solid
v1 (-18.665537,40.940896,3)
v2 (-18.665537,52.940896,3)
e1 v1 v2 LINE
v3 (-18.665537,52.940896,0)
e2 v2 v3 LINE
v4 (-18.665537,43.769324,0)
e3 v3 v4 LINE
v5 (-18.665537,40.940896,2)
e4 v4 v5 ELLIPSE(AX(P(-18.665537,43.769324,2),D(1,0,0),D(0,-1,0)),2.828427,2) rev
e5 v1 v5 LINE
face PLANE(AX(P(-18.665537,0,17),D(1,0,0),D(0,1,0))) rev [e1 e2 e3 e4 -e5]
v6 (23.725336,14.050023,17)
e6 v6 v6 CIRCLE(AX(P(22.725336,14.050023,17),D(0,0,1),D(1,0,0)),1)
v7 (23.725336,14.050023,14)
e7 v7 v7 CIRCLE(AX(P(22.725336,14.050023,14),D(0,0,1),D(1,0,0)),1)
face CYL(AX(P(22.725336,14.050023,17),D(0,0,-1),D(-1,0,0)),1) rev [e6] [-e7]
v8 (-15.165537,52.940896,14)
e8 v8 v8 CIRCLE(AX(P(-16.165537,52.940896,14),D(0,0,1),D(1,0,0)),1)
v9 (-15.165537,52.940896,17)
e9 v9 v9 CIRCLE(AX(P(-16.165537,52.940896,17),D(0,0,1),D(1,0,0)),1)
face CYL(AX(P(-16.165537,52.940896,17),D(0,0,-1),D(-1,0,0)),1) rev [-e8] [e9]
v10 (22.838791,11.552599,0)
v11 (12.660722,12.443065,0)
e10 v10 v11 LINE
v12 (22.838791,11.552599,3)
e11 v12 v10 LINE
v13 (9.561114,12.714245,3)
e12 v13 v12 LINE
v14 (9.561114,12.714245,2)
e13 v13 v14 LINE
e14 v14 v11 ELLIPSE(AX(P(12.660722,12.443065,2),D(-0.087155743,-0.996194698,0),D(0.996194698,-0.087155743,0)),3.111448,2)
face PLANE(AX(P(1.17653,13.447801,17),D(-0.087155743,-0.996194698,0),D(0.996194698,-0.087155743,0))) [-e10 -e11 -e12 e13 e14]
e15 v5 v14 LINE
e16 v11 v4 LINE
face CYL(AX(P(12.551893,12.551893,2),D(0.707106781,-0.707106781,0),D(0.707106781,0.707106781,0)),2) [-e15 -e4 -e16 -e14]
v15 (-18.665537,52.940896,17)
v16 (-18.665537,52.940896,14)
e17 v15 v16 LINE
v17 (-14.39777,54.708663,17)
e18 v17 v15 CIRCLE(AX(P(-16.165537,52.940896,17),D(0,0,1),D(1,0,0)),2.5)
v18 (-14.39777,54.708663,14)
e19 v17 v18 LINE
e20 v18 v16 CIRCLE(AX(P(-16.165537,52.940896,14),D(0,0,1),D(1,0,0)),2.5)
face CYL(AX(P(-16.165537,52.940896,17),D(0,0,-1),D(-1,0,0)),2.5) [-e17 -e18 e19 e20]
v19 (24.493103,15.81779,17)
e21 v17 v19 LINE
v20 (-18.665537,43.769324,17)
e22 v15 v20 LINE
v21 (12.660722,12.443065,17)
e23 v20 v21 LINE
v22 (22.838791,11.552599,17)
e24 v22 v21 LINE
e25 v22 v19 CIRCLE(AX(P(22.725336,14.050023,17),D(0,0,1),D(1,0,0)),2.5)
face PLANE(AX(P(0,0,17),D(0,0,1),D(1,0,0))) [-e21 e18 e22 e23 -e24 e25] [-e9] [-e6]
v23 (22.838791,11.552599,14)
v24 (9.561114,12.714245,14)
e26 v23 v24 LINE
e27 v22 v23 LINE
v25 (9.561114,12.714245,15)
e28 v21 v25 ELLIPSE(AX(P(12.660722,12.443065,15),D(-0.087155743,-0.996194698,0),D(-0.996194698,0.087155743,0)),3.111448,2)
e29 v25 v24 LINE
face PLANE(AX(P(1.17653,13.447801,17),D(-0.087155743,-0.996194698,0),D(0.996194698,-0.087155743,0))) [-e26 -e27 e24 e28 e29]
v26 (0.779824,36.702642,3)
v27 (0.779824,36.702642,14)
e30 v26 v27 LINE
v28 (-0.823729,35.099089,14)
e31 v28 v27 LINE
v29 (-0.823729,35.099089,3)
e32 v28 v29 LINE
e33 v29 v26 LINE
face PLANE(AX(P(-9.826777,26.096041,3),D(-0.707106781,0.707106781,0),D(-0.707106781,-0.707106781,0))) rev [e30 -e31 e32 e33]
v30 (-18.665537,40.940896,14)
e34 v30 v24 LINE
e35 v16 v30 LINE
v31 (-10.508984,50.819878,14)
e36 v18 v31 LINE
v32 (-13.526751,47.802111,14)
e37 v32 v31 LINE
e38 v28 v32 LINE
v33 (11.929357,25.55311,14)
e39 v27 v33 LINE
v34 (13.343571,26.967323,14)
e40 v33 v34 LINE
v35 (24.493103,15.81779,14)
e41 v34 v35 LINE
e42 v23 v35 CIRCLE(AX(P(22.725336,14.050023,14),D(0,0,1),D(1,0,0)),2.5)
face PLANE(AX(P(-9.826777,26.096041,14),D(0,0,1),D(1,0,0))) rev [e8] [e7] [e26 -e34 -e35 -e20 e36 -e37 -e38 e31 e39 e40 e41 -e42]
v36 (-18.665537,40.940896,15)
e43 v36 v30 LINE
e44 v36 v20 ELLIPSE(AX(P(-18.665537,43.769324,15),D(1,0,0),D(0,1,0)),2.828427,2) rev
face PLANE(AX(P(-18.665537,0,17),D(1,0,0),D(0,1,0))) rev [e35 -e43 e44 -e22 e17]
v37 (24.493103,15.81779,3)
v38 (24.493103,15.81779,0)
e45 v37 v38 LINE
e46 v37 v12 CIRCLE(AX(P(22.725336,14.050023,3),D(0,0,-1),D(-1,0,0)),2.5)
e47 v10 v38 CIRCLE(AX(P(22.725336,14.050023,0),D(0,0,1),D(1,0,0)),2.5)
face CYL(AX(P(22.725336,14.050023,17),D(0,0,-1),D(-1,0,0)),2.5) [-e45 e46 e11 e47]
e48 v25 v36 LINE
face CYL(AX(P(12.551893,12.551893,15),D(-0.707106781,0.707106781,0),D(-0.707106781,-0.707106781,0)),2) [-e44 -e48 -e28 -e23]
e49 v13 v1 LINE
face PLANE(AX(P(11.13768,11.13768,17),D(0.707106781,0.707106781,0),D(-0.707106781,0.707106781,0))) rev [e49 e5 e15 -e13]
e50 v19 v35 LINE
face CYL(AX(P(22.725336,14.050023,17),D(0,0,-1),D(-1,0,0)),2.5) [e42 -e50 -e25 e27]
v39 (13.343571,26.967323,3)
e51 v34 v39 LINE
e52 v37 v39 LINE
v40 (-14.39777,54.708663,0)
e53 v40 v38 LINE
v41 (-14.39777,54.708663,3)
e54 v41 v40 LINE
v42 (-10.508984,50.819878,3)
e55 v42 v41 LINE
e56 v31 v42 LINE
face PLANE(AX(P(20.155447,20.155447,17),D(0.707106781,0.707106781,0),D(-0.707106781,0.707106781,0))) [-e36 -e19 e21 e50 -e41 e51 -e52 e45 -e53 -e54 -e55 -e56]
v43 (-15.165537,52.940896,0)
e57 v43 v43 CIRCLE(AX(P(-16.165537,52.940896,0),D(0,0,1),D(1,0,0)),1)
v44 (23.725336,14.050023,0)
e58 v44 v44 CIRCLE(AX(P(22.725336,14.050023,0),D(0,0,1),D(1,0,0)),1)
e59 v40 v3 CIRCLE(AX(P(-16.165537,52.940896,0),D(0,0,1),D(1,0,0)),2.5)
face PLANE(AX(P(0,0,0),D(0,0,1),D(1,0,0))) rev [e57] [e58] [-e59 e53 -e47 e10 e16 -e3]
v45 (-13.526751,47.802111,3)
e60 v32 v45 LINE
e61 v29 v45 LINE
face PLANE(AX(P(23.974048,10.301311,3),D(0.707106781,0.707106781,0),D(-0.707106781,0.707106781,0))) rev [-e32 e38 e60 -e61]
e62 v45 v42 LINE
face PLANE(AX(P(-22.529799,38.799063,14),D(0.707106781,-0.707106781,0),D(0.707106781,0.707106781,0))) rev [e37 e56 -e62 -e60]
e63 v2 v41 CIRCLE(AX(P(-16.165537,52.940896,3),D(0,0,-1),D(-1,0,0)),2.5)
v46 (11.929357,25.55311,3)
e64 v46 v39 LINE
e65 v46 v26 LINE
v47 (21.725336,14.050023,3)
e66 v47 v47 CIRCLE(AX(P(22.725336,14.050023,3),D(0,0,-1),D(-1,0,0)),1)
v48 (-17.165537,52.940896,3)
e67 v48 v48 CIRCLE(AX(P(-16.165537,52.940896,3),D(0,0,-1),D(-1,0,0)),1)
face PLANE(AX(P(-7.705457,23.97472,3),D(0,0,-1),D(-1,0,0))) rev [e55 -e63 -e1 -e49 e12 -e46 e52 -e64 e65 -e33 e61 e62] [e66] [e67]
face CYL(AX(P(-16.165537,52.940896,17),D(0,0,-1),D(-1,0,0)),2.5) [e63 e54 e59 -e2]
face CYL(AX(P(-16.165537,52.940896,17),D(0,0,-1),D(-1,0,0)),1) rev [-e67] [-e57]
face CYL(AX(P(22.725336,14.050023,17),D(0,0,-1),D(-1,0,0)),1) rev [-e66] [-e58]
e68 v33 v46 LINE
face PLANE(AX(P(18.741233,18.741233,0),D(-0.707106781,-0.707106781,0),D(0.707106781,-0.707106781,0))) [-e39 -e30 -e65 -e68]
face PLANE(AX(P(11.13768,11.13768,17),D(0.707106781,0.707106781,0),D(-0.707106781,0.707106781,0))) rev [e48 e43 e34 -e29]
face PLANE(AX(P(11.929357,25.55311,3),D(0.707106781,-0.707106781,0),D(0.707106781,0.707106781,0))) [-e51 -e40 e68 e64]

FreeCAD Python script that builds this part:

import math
import FreeCAD as App
import Part
import Sketcher
Q = App.Units.Quantity


def edges_at(feature, points):
    """Names of the edges that pass closest to the given points."""
    edges = feature.Shape.Edges
    near = lambda p: min(range(len(edges)), key=lambda i: edges[i].distToShape(Part.Vertex(*p))[0])
    return sorted({f"Edge{near(p) + 1}" for p in points})

doc = App.newDocument("Part")
body = doc.addObject("PartDesign::Body", "Body")

# Sketch on XY plane
sketch1 = body.newObject("Sketcher::SketchObject", "Sketch")
sketch1.AttachmentSupport = (doc.getObject("XY_Plane"), [""])
sketch1.MapMode = "FlatFace"
sketch1.addGeometry([
    Part.LineSegment(App.Vector(-18.665537, 40.940896, 0), App.Vector(9.561114, 12.714245, 0)),  # 0
    Part.LineSegment(App.Vector(9.561114, 12.714245, 0), App.Vector(22.179932, 11.610242, 0)),  # 1
    Part.LineSegment(App.Vector(22.179932, 11.610242, 0), App.Vector(22.838791, 11.552599, 0)),  # 2
    Part.ArcOfCircle(Part.Circle(App.Vector(22.725336, 14.050023, 0), App.Vector(0, 0, 1), 2.5), math.radians(-87.398909), math.radians(45)),  # 3
    Part.LineSegment(App.Vector(24.493103, 15.81779, 0), App.Vector(-14.39777, 54.708663, 0)),  # 4
    Part.ArcOfCircle(Part.Circle(App.Vector(-16.165537, 52.940896, 0), App.Vector(0, 0, 1), 2.5), math.radians(45), math.radians(180)),  # 5
    Part.LineSegment(App.Vector(-18.665537, 52.940896, 0), App.Vector(-18.665537, 40.940896, 0)),  # 6
    Part.Circle(App.Vector(22.725336, 14.050023, 0), App.Vector(0, 0, 1), 1),  # 7
    Part.Circle(App.Vector(-16.165537, 52.940896, 0), App.Vector(0, 0, 1), 1),  # 8
], False)
sketch1.addConstraint([
    Sketcher.Constraint("Coincident", 0, 2, 1, 1),
    Sketcher.Constraint("Coincident", 1, 2, 2, 1),
    Sketcher.Constraint("Coincident", 2, 2, 3, 1),
    Sketcher.Constraint("Tangent", 3, 2, 4, 1),
    Sketcher.Constraint("Tangent", 4, 2, 5, 1),
    Sketcher.Constraint("Tangent", 5, 2, 6, 1),
    Sketcher.Constraint("Coincident", 6, 2, 0, 1),
    Sketcher.Constraint("Vertical", 6),
    Sketcher.Constraint("Coincident", 7, 3, 3, 3),
    Sketcher.Constraint("Coincident", 8, 3, 5, 3),
    Sketcher.Constraint("Equal", 3, 5),
    Sketcher.Constraint("Equal", 7, 8),
    Sketcher.Constraint("Parallel", 1, 2),
    Sketcher.Constraint("Parallel", 0, 4),
    Sketcher.Constraint("Diameter", 7, Q("2 mm")),
    Sketcher.Constraint("Radius", 3, Q("2.5 mm")),
    Sketcher.Constraint("DistanceY", 6, 2, 6, 1, Q("12 mm")),
    Sketcher.Constraint("Angle", 0, Q("-45 deg")),
    Sketcher.Constraint("Angle", 1, Q("-5 deg")),
    Sketcher.Constraint("Distance", 4, Q("55 mm")),
    Sketcher.Constraint("DistanceY", -1, 1, 2, 2, Q("11.552599 mm")),
    Sketcher.Constraint("Distance", 1, Q("12.667019 mm")),
    Sketcher.Constraint("DistanceX", -1, 1, 1, 2, Q("22.179932 mm")),
    Sketcher.Constraint("DistanceY", -1, 1, 1, 2, Q("11.610242 mm")),
])
pad1 = body.newObject("PartDesign::Pad", "Pad")
pad1.Profile = sketch1
pad1.Length = 17

# Sketch on an angled plane
sketch2 = body.newObject("Sketcher::SketchObject", "Sketch001")
sketch2.Placement = App.Placement(App.Vector(20.155447, 20.155447, 0), App.Rotation(App.Vector(0.707106781, -0.707106781, 0), App.Vector(0, 0, -0.999999999), App.Vector(0.707106781, 0.707106781, 0), "ZXY"))
sketch2.addGeometry([
    Part.LineSegment(App.Vector(-25.401268, -3, 0), App.Vector(-25.401268, -14, 0)),  # 0
    Part.LineSegment(App.Vector(-25.401268, -14, 0), App.Vector(31.236683, -14, 0)),  # 1
    Part.LineSegment(App.Vector(31.236683, -14, 0), App.Vector(31.236683, -3, 0)),  # 2
    Part.LineSegment(App.Vector(31.236683, -3, 0), App.Vector(-25.401268, -3, 0)),  # 3
    Part.LineSegment(App.Vector(-60.696355, -3, 0), App.Vector(-60.696355, -14, 0)),  # 4
    Part.LineSegment(App.Vector(-60.696355, -14, 0), App.Vector(-43.366054, -14, 0)),  # 5
    Part.LineSegment(App.Vector(-43.366054, -14, 0), App.Vector(-43.366054, -3, 0)),  # 6
    Part.LineSegment(App.Vector(-43.366054, -3, 0), App.Vector(-60.696355, -3, 0)),  # 7
], False)
sketch2.addConstraint([
    Sketcher.Constraint("Coincident", 0, 2, 1, 1),
    Sketcher.Constraint("Coincident", 1, 2, 2, 1),
    Sketcher.Constraint("Coincident", 2, 2, 3, 1),
    Sketcher.Constraint("Coincident", 3, 2, 0, 1),
    Sketcher.Constraint("Coincident", 4, 2, 5, 1),
    Sketcher.Constraint("Coincident", 5, 2, 6, 1),
    Sketcher.Constraint("Coincident", 6, 2, 7, 1),
    Sketcher.Constraint("Coincident", 7, 2, 4, 1),
    Sketcher.Constraint("Vertical", 0),
    Sketcher.Constraint("Horizontal", 1),
    Sketcher.Constraint("Vertical", 2),
    Sketcher.Constraint("Horizontal", 3),
    Sketcher.Constraint("Vertical", 4),
    Sketcher.Constraint("Horizontal", 5),
    Sketcher.Constraint("Vertical", 6),
    Sketcher.Constraint("Horizontal", 7),
    Sketcher.Constraint("Horizontal", 1, 2, 4, 2),
    Sketcher.Constraint("Horizontal", 3, 2, 6, 2),
    Sketcher.Constraint("DistanceY", 0, 2, 0, 1, Q("11 mm")),
    Sketcher.Constraint("DistanceY", 0, 2, -1, 1, Q("14 mm")),
    Sketcher.Constraint("DistanceX", 5, 1, 5, 2, Q("17.330301 mm")),
    Sketcher.Constraint("DistanceX", 1, 1, 1, 2, Q("56.637952 mm")),
    Sketcher.Constraint("DistanceX", 0, 2, -1, 1, Q("25.401268 mm")),
    Sketcher.Constraint("DistanceX", 4, 2, 1, 2, Q("91.933038 mm")),
])
pocket1 = body.newObject("PartDesign::Pocket", "Pocket")
pocket1.Profile = sketch2
pocket1.Length = 17

# Sketch on an angled plane
sketch3 = body.newObject("Sketcher::SketchObject", "Sketch002")
sketch3.Placement = App.Placement(App.Vector(-30.664431, 30.664431, 0), App.Rotation(App.Vector(0, 0, 1), App.Vector(0.707106781, 0.707106781, 0), App.Vector(-0.707106781, 0.707106781, 0), "ZXY"))
sketch3.addGeometry([
    Part.LineSegment(App.Vector(3, 24.236339, 0), App.Vector(3, 12.624626, 0)),
    Part.LineSegment(App.Vector(3, 12.624626, 0), App.Vector(14, 12.624626, 0)),
    Part.LineSegment(App.Vector(14, 12.624626, 0), App.Vector(14, 24.236339, 0)),
    Part.LineSegment(App.Vector(14, 24.236339, 0), App.Vector(3, 24.236339, 0)),
], False)
sketch3.addConstraint([
    Sketcher.Constraint("Coincident", 0, 2, 1, 1),
    Sketcher.Constraint("Coincident", 1, 2, 2, 1),
    Sketcher.Constraint("Coincident", 2, 2, 3, 1),
    Sketcher.Constraint("Coincident", 3, 2, 0, 1),
    Sketcher.Constraint("Vertical", 0),
    Sketcher.Constraint("Horizontal", 1),
    Sketcher.Constraint("Vertical", 2),
    Sketcher.Constraint("Horizontal", 3),
    Sketcher.Constraint("DistanceX", 1, 1, 1, 2, Q("11 mm")),
    Sketcher.Constraint("DistanceX", -1, 1, 0, 2, Q("3 mm")),
    Sketcher.Constraint("DistanceY", 0, 2, 0, 1, Q("11.611713 mm")),
    Sketcher.Constraint("DistanceY", -1, 1, 2, 2, Q("24.236339 mm")),
])
pocket2 = body.newObject("PartDesign::Pocket", "Pocket001")
pocket2.Profile = sketch3
pocket2.Type = "ThroughAll"

# Sketch on an angled plane
sketch4 = body.newObject("Sketcher::SketchObject", "Sketch003")
sketch4.Placement = App.Placement(App.Vector(20.155447, 20.155447, 0), App.Rotation(App.Vector(0, 0, -1), App.Vector(-0.707106781, 0.707106781, 0), App.Vector(0.707106781, 0.707106781, 0), "ZXY"))
sketch4.addGeometry([
    Part.LineSegment(App.Vector(-14, 25.401268, 0), App.Vector(-14, 9.633448, 0)),
    Part.LineSegment(App.Vector(-14, 9.633448, 0), App.Vector(-3, 9.633448, 0)),
    Part.LineSegment(App.Vector(-3, 9.633448, 0), App.Vector(-3, 25.401268, 0)),
    Part.LineSegment(App.Vector(-3, 25.401268, 0), App.Vector(-14, 25.401268, 0)),
], False)
sketch4.addConstraint([
    Sketcher.Constraint("Coincident", 0, 2, 1, 1),
    Sketcher.Constraint("Coincident", 1, 2, 2, 1),
    Sketcher.Constraint("Coincident", 2, 2, 3, 1),
    Sketcher.Constraint("Coincident", 3, 2, 0, 1),
    Sketcher.Constraint("Vertical", 0),
    Sketcher.Constraint("Horizontal", 1),
    Sketcher.Constraint("Vertical", 2),
    Sketcher.Constraint("Horizontal", 3),
    Sketcher.Constraint("DistanceX", 1, 1, 1, 2, Q("11 mm")),
    Sketcher.Constraint("DistanceX", 0, 2, -1, 1, Q("14 mm")),
    Sketcher.Constraint("DistanceY", 0, 2, 0, 1, Q("15.76782 mm")),
    Sketcher.Constraint("DistanceY", -1, 1, 2, 2, Q("25.401268 mm")),
])
pad2 = body.newObject("PartDesign::Pad", "Pad001")
pad2.Profile = sketch4
pad2.Length = 2
pad2.Reversed = True
doc.recompute()

fillet = body.newObject("PartDesign::Fillet", "Fillet")
fillet.Base = (pad2, edges_at(pad2, [(-4.552, 26.828, 17), (-4.552, 26.828, 0)]))
fillet.Radius = 2

doc.recompute()
